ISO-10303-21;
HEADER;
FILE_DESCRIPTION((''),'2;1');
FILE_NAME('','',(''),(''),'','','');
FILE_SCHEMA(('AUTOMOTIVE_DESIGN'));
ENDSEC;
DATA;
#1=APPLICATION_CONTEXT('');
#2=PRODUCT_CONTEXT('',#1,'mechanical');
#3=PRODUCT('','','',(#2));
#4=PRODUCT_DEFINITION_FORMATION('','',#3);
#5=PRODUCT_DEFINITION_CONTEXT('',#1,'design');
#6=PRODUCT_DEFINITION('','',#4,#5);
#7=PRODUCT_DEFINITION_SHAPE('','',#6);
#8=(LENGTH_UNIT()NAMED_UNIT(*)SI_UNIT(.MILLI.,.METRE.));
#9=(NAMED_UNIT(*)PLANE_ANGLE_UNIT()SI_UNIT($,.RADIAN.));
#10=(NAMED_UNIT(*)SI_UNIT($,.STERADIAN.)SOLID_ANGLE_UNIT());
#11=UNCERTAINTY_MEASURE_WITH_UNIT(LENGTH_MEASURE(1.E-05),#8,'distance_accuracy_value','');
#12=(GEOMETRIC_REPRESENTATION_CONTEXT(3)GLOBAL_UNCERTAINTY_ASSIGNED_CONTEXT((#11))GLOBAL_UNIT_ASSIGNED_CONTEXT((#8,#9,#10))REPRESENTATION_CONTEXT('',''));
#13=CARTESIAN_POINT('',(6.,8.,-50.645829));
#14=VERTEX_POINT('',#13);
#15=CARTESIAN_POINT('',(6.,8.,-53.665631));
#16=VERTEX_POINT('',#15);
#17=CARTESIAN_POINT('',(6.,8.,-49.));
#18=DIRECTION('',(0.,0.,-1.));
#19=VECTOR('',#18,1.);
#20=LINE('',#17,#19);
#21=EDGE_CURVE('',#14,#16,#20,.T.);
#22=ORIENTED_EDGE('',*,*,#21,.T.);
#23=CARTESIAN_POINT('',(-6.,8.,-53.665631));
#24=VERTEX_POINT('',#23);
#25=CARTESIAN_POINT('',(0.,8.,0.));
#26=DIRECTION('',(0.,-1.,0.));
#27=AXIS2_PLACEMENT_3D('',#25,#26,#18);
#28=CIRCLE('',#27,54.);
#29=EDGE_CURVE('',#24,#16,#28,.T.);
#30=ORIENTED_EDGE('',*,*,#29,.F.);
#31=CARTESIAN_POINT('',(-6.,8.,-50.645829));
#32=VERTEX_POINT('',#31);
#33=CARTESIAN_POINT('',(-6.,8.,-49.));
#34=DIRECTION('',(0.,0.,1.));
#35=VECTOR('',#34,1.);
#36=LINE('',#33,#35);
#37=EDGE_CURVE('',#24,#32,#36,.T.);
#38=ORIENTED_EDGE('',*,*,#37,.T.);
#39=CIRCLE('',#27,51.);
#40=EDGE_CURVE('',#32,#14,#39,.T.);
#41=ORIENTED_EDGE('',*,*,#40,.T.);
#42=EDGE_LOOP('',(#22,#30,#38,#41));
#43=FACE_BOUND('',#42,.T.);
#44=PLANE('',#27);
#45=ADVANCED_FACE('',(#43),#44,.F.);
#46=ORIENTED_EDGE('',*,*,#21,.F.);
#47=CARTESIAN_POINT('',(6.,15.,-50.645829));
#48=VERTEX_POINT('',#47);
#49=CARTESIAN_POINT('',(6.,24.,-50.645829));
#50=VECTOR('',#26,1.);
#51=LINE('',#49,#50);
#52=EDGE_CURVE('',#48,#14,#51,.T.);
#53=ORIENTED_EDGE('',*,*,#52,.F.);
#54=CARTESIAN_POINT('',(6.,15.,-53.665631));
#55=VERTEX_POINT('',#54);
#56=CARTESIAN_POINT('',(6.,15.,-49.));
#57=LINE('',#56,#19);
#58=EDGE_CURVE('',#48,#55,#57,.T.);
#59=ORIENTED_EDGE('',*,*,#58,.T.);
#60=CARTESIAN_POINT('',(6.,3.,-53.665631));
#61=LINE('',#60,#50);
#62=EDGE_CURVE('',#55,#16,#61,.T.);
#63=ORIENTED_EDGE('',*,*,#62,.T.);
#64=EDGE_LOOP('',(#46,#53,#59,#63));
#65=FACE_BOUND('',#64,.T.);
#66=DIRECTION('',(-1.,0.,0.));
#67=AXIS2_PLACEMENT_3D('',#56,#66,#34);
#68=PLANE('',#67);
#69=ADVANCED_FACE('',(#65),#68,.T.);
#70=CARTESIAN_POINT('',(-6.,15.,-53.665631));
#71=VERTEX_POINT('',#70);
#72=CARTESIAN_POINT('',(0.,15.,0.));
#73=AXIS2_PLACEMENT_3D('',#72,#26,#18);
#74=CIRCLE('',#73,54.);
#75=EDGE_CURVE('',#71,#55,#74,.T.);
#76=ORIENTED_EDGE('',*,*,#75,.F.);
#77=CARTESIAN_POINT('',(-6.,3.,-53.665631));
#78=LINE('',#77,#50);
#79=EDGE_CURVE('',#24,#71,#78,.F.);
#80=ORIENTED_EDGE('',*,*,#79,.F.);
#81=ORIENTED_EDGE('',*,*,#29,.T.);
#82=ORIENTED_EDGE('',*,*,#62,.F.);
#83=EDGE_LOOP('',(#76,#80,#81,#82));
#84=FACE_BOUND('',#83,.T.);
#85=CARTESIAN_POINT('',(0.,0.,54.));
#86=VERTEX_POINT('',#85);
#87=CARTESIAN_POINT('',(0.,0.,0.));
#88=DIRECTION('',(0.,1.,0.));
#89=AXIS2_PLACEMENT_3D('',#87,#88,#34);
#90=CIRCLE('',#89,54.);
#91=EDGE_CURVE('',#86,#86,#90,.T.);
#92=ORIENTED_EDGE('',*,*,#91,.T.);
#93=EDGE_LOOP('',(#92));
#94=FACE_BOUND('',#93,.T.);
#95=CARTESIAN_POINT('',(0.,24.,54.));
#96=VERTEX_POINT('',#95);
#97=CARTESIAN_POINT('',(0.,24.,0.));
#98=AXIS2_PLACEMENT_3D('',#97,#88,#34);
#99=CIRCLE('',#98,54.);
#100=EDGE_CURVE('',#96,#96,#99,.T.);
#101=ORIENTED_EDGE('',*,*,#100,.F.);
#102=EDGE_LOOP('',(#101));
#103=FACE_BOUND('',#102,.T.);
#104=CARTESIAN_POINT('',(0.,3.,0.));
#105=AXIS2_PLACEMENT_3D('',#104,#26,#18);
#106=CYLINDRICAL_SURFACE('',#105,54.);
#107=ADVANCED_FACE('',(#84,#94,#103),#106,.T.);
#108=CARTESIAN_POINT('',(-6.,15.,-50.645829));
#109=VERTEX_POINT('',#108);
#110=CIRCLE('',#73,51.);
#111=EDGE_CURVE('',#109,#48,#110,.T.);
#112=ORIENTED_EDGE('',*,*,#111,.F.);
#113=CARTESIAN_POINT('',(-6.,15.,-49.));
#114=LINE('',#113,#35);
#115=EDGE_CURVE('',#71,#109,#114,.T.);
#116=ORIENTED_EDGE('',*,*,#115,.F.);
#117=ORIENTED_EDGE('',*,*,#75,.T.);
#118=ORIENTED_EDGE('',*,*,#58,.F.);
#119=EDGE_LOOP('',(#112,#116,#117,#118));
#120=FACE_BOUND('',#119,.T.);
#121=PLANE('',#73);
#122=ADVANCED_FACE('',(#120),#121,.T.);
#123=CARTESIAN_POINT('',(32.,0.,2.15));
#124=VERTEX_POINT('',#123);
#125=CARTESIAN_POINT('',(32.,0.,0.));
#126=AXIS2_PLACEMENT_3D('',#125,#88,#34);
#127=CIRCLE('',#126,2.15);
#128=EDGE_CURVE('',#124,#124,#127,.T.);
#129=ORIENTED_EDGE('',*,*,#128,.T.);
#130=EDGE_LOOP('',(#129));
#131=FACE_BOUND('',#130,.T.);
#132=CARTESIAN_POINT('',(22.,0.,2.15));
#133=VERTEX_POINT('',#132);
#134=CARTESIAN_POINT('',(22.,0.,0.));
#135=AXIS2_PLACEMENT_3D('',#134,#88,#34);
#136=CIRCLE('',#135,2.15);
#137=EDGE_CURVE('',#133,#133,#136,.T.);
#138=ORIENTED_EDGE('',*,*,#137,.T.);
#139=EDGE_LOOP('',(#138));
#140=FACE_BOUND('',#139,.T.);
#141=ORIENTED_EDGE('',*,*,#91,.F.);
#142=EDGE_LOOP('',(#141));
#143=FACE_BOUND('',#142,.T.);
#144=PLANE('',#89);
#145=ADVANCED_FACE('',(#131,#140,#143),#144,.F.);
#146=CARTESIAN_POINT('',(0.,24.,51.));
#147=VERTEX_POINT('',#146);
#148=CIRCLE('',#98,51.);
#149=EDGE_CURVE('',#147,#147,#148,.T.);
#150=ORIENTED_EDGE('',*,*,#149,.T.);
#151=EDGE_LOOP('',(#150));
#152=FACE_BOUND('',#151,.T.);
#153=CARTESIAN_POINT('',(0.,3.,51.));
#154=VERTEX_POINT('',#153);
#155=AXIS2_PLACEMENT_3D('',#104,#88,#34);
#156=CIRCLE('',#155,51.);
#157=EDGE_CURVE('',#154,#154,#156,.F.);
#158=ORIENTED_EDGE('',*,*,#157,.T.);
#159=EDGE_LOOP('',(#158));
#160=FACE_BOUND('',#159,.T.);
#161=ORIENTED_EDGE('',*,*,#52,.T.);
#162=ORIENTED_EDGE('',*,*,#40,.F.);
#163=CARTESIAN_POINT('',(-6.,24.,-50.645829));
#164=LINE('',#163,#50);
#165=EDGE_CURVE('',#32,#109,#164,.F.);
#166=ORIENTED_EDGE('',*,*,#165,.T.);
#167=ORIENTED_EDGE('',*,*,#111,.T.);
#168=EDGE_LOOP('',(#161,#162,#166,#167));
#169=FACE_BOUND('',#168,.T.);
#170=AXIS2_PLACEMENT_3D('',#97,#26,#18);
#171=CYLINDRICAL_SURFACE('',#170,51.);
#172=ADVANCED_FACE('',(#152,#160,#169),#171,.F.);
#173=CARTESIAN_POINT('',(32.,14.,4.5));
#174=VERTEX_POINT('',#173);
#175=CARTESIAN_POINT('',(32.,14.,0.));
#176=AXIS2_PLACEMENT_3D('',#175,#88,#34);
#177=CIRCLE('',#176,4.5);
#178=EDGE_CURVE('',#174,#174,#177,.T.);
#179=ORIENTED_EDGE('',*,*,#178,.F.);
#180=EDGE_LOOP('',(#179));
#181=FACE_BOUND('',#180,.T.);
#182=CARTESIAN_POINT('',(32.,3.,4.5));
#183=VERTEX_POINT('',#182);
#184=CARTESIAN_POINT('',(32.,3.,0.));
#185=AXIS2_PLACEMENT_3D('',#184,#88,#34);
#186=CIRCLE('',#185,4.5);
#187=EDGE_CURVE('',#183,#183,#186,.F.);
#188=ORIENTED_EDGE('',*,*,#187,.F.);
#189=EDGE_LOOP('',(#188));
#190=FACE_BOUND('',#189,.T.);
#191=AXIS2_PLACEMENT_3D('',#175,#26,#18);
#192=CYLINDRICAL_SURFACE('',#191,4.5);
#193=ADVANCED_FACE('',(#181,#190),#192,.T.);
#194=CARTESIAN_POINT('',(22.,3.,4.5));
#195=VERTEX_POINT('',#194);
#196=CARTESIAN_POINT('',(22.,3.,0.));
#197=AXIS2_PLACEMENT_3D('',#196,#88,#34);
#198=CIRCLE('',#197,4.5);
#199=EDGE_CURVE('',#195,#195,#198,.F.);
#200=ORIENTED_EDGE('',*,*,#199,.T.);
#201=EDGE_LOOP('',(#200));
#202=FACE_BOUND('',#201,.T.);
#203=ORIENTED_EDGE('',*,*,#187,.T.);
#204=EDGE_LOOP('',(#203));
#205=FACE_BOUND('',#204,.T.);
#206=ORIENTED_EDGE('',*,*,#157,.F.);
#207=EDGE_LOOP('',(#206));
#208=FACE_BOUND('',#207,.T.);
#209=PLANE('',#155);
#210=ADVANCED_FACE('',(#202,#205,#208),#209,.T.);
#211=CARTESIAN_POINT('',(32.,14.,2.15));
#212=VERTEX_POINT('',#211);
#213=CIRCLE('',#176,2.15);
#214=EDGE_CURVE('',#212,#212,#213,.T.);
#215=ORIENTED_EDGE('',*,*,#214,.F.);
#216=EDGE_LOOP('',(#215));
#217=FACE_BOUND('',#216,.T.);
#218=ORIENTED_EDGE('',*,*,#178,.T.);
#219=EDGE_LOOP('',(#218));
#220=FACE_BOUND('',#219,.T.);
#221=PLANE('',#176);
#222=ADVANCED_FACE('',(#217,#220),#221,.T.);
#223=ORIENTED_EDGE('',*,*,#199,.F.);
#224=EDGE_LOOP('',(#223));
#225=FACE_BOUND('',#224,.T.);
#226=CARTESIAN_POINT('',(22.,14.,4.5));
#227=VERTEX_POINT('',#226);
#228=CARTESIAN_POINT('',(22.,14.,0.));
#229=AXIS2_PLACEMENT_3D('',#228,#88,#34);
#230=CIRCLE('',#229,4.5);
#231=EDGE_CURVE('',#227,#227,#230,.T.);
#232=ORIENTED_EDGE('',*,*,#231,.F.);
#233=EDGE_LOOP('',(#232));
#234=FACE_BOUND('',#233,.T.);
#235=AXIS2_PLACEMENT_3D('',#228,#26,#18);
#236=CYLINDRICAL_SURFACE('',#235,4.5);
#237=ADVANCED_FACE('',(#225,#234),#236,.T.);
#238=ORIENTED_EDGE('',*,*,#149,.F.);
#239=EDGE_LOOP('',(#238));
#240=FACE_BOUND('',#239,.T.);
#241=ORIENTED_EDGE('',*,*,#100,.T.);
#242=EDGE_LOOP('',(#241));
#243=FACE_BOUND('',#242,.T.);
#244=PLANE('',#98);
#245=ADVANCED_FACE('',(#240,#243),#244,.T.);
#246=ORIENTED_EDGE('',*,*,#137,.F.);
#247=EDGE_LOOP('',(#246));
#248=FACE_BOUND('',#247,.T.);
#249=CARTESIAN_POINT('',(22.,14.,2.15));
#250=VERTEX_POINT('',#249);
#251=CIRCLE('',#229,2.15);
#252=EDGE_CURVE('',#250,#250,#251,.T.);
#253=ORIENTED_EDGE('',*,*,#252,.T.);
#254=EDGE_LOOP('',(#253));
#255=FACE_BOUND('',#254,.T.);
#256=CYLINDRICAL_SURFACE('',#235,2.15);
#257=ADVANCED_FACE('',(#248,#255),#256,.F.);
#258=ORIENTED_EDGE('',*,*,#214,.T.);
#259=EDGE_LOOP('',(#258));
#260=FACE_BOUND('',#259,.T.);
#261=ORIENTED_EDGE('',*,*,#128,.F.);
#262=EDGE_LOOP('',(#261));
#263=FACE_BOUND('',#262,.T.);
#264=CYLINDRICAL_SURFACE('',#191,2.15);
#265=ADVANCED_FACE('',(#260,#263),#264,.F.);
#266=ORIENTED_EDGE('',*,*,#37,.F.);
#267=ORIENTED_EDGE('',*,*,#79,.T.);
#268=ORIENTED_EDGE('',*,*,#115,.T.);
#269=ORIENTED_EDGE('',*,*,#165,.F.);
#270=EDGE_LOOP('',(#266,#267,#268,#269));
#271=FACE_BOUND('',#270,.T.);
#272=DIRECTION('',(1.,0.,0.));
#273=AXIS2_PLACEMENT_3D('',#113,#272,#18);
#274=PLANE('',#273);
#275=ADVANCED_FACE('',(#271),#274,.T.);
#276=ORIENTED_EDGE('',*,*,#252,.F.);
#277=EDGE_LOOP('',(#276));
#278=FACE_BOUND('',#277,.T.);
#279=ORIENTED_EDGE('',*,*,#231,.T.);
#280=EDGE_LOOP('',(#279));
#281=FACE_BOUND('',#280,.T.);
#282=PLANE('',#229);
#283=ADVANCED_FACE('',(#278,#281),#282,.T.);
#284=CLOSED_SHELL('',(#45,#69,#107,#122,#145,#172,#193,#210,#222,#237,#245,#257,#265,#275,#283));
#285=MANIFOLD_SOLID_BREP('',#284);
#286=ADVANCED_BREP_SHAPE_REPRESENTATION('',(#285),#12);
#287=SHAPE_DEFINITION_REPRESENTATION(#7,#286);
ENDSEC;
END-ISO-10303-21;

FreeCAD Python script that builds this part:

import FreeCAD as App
import Part
import Sketcher

V = App.Vector

doc = App.newDocument("Part")
body = doc.addObject("PartDesign::Body", "Body")

# Sketch on XZ plane
sketch1 = doc.addObject("Sketcher::SketchObject", "Sketch")
body.addObject(sketch1)
sketch1.AttachmentSupport = (doc.XZ_Plane, [""])
sketch1.MapMode = "FlatFace"
sketch1.addGeometry(Part.Circle(V(0, 0, 0), V(0, 0, 1), 54), False)
sketch1.addConstraint(Sketcher.Constraint("Coincident", 0, 3, -1, 1))
sketch1.addConstraint(Sketcher.Constraint("Diameter", 0, 108.0))
pad1 = doc.addObject("PartDesign::Pad", "Pad")
body.addObject(pad1)
pad1.Profile = sketch1
pad1.Length = 3
pad1.Reversed = True

# Sketch on XZ plane
sketch2 = doc.addObject("Sketcher::SketchObject", "Sketch001")
body.addObject(sketch2)
sketch2.AttachmentSupport = (doc.XZ_Plane, [""])
sketch2.MapMode = "FlatFace"
sketch2.addGeometry(Part.Circle(V(0, 0, 0), V(0, 0, 1), 54), False)
sketch2.addGeometry(Part.Circle(V(0, 0, 0), V(0, 0, 1), 51), False)
sketch2.addConstraint(Sketcher.Constraint("Coincident", 0, 3, -1, 1))
sketch2.addConstraint(Sketcher.Constraint("Coincident", 1, 3, -1, 1))
sketch2.addConstraint(Sketcher.Constraint("Diameter", 0, 108.0))
sketch2.addConstraint(Sketcher.Constraint("Diameter", 1, 102.0))
pad2 = doc.addObject("PartDesign::Pad", "Pad001")
body.addObject(pad2)
pad2.Profile = sketch2
pad2.Length = 24
pad2.Reversed = True

# Sketch on XZ plane
sketch3 = doc.addObject("Sketcher::SketchObject", "Sketch002")
body.addObject(sketch3)
sketch3.AttachmentSupport = (doc.XZ_Plane, [""])
sketch3.MapMode = "FlatFace"
sketch3.addGeometry(Part.Circle(V(22, 0, 0), V(0, 0, 1), 4.5), False)
sketch3.addGeometry(Part.Circle(V(32, 0, 0), V(0, 0, 1), 4.5), False)
sketch3.addConstraint(Sketcher.Constraint("Equal", 0, 1))
sketch3.addConstraint(Sketcher.Constraint("PointOnObject", 0, 3, -1))
sketch3.addConstraint(Sketcher.Constraint("PointOnObject", 1, 3, -1))
sketch3.addConstraint(Sketcher.Constraint("Diameter", 0, 9.0))
sketch3.addConstraint(Sketcher.Constraint("DistanceX", -1, 1, 0, 3, 22.0))
sketch3.addConstraint(Sketcher.Constraint("DistanceX", -1, 1, 1, 3, 32.0))
pad3 = doc.addObject("PartDesign::Pad", "Pad002")
body.addObject(pad3)
pad3.Profile = sketch3
pad3.Length = 14
pad3.Reversed = True

# Sketch on XZ plane
sketch4 = doc.addObject("Sketcher::SketchObject", "Sketch003")
body.addObject(sketch4)
sketch4.AttachmentSupport = (doc.XZ_Plane, [""])
sketch4.MapMode = "FlatFace"
sketch4.addGeometry(Part.Circle(V(22, 0, 0), V(0, 0, 1), 2.15), False)
sketch4.addGeometry(Part.Circle(V(32, 0, 0), V(0, 0, 1), 2.15), False)
sketch4.addConstraint(Sketcher.Constraint("Equal", 0, 1))
sketch4.addConstraint(Sketcher.Constraint("PointOnObject", 0, 3, -1))
sketch4.addConstraint(Sketcher.Constraint("PointOnObject", 1, 3, -1))
sketch4.addConstraint(Sketcher.Constraint("Diameter", 0, 4.3))
sketch4.addConstraint(Sketcher.Constraint("DistanceX", -1, 1, 0, 3, 22.0))
sketch4.addConstraint(Sketcher.Constraint("DistanceX", -1, 1, 1, 3, 32.0))
pocket1 = doc.addObject("PartDesign::Pocket", "Pocket")
body.addObject(pocket1)
pocket1.Profile = sketch4
pocket1.Length = 14

# Sketch on XZ plane
sketch5 = doc.addObject("Sketcher::SketchObject", "Sketch004")
body.addObject(sketch5)
sketch5.AttachmentSupport = (doc.XZ_Plane, [""])
sketch5.MapMode = "FlatFace"
sketch5.AttachmentOffset = App.Placement(V(0, 0, -8), App.Rotation())
sketch5.addGeometry(Part.LineSegment(V(-6, -60, 0), V(-6, -49, 0)), False)
sketch5.addGeometry(Part.LineSegment(V(-6, -49, 0), V(6, -49, 0)), False)
sketch5.addGeometry(Part.LineSegment(V(6, -49, 0), V(6, -60, 0)), False)
sketch5.addGeometry(Part.LineSegment(V(6, -60, 0), V(-6, -60, 0)), False)
sketch5.addConstraint(Sketcher.Constraint("Coincident", 0, 2, 1, 1))
sketch5.addConstraint(Sketcher.Constraint("Coincident", 1, 2, 2, 1))
sketch5.addConstraint(Sketcher.Constraint("Coincident", 2, 2, 3, 1))
sketch5.addConstraint(Sketcher.Constraint("Coincident", 3, 2, 0, 1))
sketch5.addConstraint(Sketcher.Constraint("Vertical", 0))
sketch5.addConstraint(Sketcher.Constraint("Horizontal", 1))
sketch5.addConstraint(Sketcher.Constraint("Vertical", 2))
sketch5.addConstraint(Sketcher.Constraint("Horizontal", 3))
sketch5.addConstraint(Sketcher.Constraint("DistanceX", 1, 1, 1, 2, 12.0))
sketch5.addConstraint(Sketcher.Constraint("DistanceY", 0, 1, 0, 2, 11.0))
sketch5.addConstraint(Sketcher.Constraint("DistanceX", 0, 2, -1, 1, 6.0))
sketch5.addConstraint(Sketcher.Constraint("DistanceY", 0, 2, -1, 1, 49.0))
pocket2 = doc.addObject("PartDesign::Pocket", "Pocket001")
body.addObject(pocket2)
pocket2.Profile = sketch5
pocket2.Length = 7

doc.recompute()
